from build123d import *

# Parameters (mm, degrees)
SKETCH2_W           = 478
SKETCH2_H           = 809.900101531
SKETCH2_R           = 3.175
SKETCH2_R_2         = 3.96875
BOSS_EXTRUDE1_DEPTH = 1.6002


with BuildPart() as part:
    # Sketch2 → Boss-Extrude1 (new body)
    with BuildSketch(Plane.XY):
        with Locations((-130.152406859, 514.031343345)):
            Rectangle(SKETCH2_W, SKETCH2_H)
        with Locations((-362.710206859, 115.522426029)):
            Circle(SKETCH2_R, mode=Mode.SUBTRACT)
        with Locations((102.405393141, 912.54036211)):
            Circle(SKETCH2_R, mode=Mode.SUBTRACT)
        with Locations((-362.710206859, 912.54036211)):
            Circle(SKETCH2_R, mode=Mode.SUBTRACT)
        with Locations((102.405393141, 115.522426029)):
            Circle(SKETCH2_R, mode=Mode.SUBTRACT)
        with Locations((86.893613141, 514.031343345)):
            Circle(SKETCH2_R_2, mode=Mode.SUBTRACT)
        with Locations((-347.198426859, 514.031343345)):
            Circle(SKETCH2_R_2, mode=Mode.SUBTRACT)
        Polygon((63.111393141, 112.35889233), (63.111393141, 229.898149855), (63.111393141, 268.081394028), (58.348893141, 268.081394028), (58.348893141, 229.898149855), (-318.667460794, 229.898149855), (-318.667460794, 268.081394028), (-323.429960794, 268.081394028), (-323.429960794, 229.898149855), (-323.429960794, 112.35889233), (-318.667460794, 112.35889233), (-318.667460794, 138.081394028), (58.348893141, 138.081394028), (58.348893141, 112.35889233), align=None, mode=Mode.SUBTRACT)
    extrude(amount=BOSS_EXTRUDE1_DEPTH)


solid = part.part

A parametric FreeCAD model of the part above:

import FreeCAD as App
import Part
import Sketcher

V = App.Vector
Q = App.Units.Quantity

doc = App.newDocument("Part")
params = doc.addObject("Spreadsheet::Sheet", "Params")
for row, (alias, value) in enumerate([
    ("sketch1_diameter", "0.25 in"),
    ("sketch1_diameter2", "0.3125 in"),
    ("sketch1_width", "0.1875 in"),
    ("pad1_length", "0.063 in"),
], start=1):
    params.set(f"A{row}", alias)
    params.set(f"B{row}", "=" + value)
    params.setAlias(f"B{row}", alias)

body = doc.addObject("PartDesign::Body", "Body")

sketch1 = body.newObject("Sketcher::SketchObject", "Sketch")
sketch1.AttachmentSupport = (doc.getObject("XY_Plane"), [""])
sketch1.MapMode = "FlatFace"
sketch1.addGeometry(Part.LineSegment(V(-369.2, 919, 0), V(-369.2, 109.1, 0)), False)
sketch1.addGeometry(Part.LineSegment(V(-369.2, 109.1, 0), V(108.8, 109.1, 0)), False)
sketch1.addGeometry(Part.LineSegment(V(108.8, 109.1, 0), V(108.8, 919, 0)), False)
sketch1.addGeometry(Part.LineSegment(V(108.8, 919, 0), V(-369.2, 919, 0)), False)
sketch1.addGeometry(Part.Circle(V(-362.7, 115.5, 0), V(0, 0, 1), 3.2), False)
sketch1.addGeometry(Part.LineSegment(V(63.1, 268.1, 0), V(63.1, 112.4, 0)), False)
sketch1.addGeometry(Part.LineSegment(V(63.1, 112.4, 0), V(58.3, 112.4, 0)), False)
sketch1.addGeometry(Part.LineSegment(V(58.3, 112.4, 0), V(58.3, 138.1, 0)), False)
sketch1.addGeometry(Part.LineSegment(V(58.3, 138.1, 0), V(-318.7, 138.1, 0)), False)
sketch1.addGeometry(Part.LineSegment(V(-318.7, 138.1, 0), V(-318.7, 112.4, 0)), False)
sketch1.addGeometry(Part.LineSegment(V(-318.7, 112.4, 0), V(-323.4, 112.4, 0)), False)
sketch1.addGeometry(Part.LineSegment(V(-323.4, 112.4, 0), V(-323.4, 268.1, 0)), False)
sketch1.addGeometry(Part.LineSegment(V(-323.4, 268.1, 0), V(-318.7, 268.1, 0)), False)
sketch1.addGeometry(Part.LineSegment(V(-318.7, 268.1, 0), V(-318.7, 229.9, 0)), False)
sketch1.addGeometry(Part.LineSegment(V(-318.7, 229.9, 0), V(58.3, 229.9, 0)), False)
sketch1.addGeometry(Part.LineSegment(V(58.3, 229.9, 0), V(58.3, 268.1, 0)), False)
sketch1.addGeometry(Part.LineSegment(V(58.3, 268.1, 0), V(63.1, 268.1, 0)), False)
sketch1.addGeometry(Part.Circle(V(-347.2, 514, 0), V(0, 0, 1), 4), False)
sketch1.addGeometry(Part.Circle(V(102.4, 115.5, 0), V(0, 0, 1), 3.2), False)
sketch1.addGeometry(Part.Circle(V(86.9, 514, 0), V(0, 0, 1), 4), False)
sketch1.addGeometry(Part.Circle(V(-362.7, 912.5, 0), V(0, 0, 1), 3.2), False)
sketch1.addGeometry(Part.Circle(V(102.4, 912.5, 0), V(0, 0, 1), 3.2), False)
sketch1.addConstraint(Sketcher.Constraint("Coincident", 0, 2, 1, 1))
sketch1.addConstraint(Sketcher.Constraint("Coincident", 1, 2, 2, 1))
sketch1.addConstraint(Sketcher.Constraint("Coincident", 2, 2, 3, 1))
sketch1.addConstraint(Sketcher.Constraint("Coincident", 3, 2, 0, 1))
sketch1.addConstraint(Sketcher.Constraint("Coincident", 5, 2, 6, 1))
sketch1.addConstraint(Sketcher.Constraint("Coincident", 6, 2, 7, 1))
sketch1.addConstraint(Sketcher.Constraint("Coincident", 7, 2, 8, 1))
sketch1.addConstraint(Sketcher.Constraint("Coincident", 8, 2, 9, 1))
sketch1.addConstraint(Sketcher.Constraint("Coincident", 9, 2, 10, 1))
sketch1.addConstraint(Sketcher.Constraint("Coincident", 10, 2, 11, 1))
sketch1.addConstraint(Sketcher.Constraint("Coincident", 11, 2, 12, 1))
sketch1.addConstraint(Sketcher.Constraint("Coincident", 12, 2, 13, 1))
sketch1.addConstraint(Sketcher.Constraint("Coincident", 13, 2, 14, 1))
sketch1.addConstraint(Sketcher.Constraint("Coincident", 14, 2, 15, 1))
sketch1.addConstraint(Sketcher.Constraint("Coincident", 15, 2, 16, 1))
sketch1.addConstraint(Sketcher.Constraint("Coincident", 16, 2, 5, 1))
sketch1.addConstraint(Sketcher.Constraint("Vertical", 0))
sketch1.addConstraint(Sketcher.Constraint("Horizontal", 1))
sketch1.addConstraint(Sketcher.Constraint("Vertical", 2))
sketch1.addConstraint(Sketcher.Constraint("Horizontal", 3))
sketch1.addConstraint(Sketcher.Constraint("Vertical", 5))
sketch1.addConstraint(Sketcher.Constraint("Horizontal", 6))
sketch1.addConstraint(Sketcher.Constraint("Vertical", 7))
sketch1.addConstraint(Sketcher.Constraint("Horizontal", 8))
sketch1.addConstraint(Sketcher.Constraint("Vertical", 9))
sketch1.addConstraint(Sketcher.Constraint("Horizontal", 10))
sketch1.addConstraint(Sketcher.Constraint("Vertical", 11))
sketch1.addConstraint(Sketcher.Constraint("Horizontal", 12))
sketch1.addConstraint(Sketcher.Constraint("Vertical", 13))
sketch1.addConstraint(Sketcher.Constraint("Horizontal", 14))
sketch1.addConstraint(Sketcher.Constraint("Vertical", 15))
sketch1.addConstraint(Sketcher.Constraint("Horizontal", 16))
sketch1.addConstraint(Sketcher.Constraint("Equal", 4, 18))
sketch1.addConstraint(Sketcher.Constraint("Equal", 17, 19))
sketch1.addConstraint(Sketcher.Constraint("Equal", 18, 20))
sketch1.addConstraint(Sketcher.Constraint("Equal", 20, 21))
sketch1.addConstraint(Sketcher.Constraint("Horizontal", 4, 3, 18, 3))
sketch1.addConstraint(Sketcher.Constraint("Horizontal", 17, 3, 19, 3))
sketch1.addConstraint(Sketcher.Constraint("Horizontal", 20, 3, 21, 3))
sketch1.addConstraint(Sketcher.Constraint("Horizontal", 6, 2, 9, 2))
sketch1.addConstraint(Sketcher.Constraint("Horizontal", 12, 2, 15, 2))
sketch1.addConstraint(Sketcher.Constraint("Vertical", 4, 3, 20, 3))
sketch1.addConstraint(Sketcher.Constraint("Vertical", 18, 3, 21, 3))
sketch1.addConstraint(Sketcher.Constraint("Vertical", 9, 2, 12, 2))
sketch1.addConstraint(Sketcher.Constraint("Vertical", 7, 2, 14, 2))
sketch1.addConstraint(Sketcher.Constraint("Equal", 6, 10))
sketch1.addConstraint(Sketcher.Constraint("Diameter", 4, Q("0.25 in")))
sketch1.addConstraint(Sketcher.Constraint("Diameter", 17, Q("0.3125 in")))
sketch1.addConstraint(Sketcher.Constraint("DistanceX", 6, 2, 6, 1, Q("0.1875 in")))
sketch1.addConstraint(Sketcher.Constraint("DistanceX", 1, 1, 1, 2, 478.0))
sketch1.addConstraint(Sketcher.Constraint("DistanceY", 0, 2, 0, 1, 809.900102))
sketch1.addConstraint(Sketcher.Constraint("DistanceY", 5, 2, 5, 1, 155.722502))
sketch1.addConstraint(Sketcher.Constraint("DistanceY", 7, 1, 7, 2, 25.722502))
sketch1.addConstraint(Sketcher.Constraint("DistanceX", 4, 3, 17, 3, Q("0.6107 in")))
sketch1.addConstraint(Sketcher.Constraint("DistanceX", 19, 3, 18, 3, Q("0.6107 in")))
sketch1.addConstraint(Sketcher.Constraint("DistanceX", 4, 3, 18, 3, 465.1156))
sketch1.addConstraint(Sketcher.Constraint("DistanceX", 0, 2, 4, 3, 6.4422))
sketch1.addConstraint(Sketcher.Constraint("DistanceX", 5, 2, 18, 3, 39.294))
sketch1.addConstraint(Sketcher.Constraint("DistanceY", 1, 2, 5, 2, 3.2776))
sketch1.addConstraint(Sketcher.Constraint("DistanceX", 8, 2, 8, 1, 377.016354))
sketch1.addConstraint(Sketcher.Constraint("DistanceY", 13, 2, 13, 1, 38.183244))
sketch1.addConstraint(Sketcher.Constraint("DistanceX", 8, 2, -1, 1, 318.667461))
sketch1.addConstraint(Sketcher.Constraint("DistanceY", -1, 1, 13, 2, 229.89815))
sketch1.addConstraint(Sketcher.Constraint("DistanceY", 17, 3, 20, 3, 398.509019))
sketch1.addConstraint(Sketcher.Constraint("DistanceY", 0, 2, 17, 3, 404.950051))
sketch1.addConstraint(Sketcher.Constraint("DistanceY", 18, 3, 2, 2, 803.458968))
sketch1.setExpression("Constraints[46]", "Params.sketch1_diameter")
sketch1.setExpression("Constraints[47]", "Params.sketch1_diameter2")
sketch1.setExpression("Constraints[48]", "Params.sketch1_width")
pad1 = body.newObject("PartDesign::Pad", "Pad")
pad1.Profile = sketch1
pad1.setExpression("Length", "Params.pad1_length")

doc.recompute()
